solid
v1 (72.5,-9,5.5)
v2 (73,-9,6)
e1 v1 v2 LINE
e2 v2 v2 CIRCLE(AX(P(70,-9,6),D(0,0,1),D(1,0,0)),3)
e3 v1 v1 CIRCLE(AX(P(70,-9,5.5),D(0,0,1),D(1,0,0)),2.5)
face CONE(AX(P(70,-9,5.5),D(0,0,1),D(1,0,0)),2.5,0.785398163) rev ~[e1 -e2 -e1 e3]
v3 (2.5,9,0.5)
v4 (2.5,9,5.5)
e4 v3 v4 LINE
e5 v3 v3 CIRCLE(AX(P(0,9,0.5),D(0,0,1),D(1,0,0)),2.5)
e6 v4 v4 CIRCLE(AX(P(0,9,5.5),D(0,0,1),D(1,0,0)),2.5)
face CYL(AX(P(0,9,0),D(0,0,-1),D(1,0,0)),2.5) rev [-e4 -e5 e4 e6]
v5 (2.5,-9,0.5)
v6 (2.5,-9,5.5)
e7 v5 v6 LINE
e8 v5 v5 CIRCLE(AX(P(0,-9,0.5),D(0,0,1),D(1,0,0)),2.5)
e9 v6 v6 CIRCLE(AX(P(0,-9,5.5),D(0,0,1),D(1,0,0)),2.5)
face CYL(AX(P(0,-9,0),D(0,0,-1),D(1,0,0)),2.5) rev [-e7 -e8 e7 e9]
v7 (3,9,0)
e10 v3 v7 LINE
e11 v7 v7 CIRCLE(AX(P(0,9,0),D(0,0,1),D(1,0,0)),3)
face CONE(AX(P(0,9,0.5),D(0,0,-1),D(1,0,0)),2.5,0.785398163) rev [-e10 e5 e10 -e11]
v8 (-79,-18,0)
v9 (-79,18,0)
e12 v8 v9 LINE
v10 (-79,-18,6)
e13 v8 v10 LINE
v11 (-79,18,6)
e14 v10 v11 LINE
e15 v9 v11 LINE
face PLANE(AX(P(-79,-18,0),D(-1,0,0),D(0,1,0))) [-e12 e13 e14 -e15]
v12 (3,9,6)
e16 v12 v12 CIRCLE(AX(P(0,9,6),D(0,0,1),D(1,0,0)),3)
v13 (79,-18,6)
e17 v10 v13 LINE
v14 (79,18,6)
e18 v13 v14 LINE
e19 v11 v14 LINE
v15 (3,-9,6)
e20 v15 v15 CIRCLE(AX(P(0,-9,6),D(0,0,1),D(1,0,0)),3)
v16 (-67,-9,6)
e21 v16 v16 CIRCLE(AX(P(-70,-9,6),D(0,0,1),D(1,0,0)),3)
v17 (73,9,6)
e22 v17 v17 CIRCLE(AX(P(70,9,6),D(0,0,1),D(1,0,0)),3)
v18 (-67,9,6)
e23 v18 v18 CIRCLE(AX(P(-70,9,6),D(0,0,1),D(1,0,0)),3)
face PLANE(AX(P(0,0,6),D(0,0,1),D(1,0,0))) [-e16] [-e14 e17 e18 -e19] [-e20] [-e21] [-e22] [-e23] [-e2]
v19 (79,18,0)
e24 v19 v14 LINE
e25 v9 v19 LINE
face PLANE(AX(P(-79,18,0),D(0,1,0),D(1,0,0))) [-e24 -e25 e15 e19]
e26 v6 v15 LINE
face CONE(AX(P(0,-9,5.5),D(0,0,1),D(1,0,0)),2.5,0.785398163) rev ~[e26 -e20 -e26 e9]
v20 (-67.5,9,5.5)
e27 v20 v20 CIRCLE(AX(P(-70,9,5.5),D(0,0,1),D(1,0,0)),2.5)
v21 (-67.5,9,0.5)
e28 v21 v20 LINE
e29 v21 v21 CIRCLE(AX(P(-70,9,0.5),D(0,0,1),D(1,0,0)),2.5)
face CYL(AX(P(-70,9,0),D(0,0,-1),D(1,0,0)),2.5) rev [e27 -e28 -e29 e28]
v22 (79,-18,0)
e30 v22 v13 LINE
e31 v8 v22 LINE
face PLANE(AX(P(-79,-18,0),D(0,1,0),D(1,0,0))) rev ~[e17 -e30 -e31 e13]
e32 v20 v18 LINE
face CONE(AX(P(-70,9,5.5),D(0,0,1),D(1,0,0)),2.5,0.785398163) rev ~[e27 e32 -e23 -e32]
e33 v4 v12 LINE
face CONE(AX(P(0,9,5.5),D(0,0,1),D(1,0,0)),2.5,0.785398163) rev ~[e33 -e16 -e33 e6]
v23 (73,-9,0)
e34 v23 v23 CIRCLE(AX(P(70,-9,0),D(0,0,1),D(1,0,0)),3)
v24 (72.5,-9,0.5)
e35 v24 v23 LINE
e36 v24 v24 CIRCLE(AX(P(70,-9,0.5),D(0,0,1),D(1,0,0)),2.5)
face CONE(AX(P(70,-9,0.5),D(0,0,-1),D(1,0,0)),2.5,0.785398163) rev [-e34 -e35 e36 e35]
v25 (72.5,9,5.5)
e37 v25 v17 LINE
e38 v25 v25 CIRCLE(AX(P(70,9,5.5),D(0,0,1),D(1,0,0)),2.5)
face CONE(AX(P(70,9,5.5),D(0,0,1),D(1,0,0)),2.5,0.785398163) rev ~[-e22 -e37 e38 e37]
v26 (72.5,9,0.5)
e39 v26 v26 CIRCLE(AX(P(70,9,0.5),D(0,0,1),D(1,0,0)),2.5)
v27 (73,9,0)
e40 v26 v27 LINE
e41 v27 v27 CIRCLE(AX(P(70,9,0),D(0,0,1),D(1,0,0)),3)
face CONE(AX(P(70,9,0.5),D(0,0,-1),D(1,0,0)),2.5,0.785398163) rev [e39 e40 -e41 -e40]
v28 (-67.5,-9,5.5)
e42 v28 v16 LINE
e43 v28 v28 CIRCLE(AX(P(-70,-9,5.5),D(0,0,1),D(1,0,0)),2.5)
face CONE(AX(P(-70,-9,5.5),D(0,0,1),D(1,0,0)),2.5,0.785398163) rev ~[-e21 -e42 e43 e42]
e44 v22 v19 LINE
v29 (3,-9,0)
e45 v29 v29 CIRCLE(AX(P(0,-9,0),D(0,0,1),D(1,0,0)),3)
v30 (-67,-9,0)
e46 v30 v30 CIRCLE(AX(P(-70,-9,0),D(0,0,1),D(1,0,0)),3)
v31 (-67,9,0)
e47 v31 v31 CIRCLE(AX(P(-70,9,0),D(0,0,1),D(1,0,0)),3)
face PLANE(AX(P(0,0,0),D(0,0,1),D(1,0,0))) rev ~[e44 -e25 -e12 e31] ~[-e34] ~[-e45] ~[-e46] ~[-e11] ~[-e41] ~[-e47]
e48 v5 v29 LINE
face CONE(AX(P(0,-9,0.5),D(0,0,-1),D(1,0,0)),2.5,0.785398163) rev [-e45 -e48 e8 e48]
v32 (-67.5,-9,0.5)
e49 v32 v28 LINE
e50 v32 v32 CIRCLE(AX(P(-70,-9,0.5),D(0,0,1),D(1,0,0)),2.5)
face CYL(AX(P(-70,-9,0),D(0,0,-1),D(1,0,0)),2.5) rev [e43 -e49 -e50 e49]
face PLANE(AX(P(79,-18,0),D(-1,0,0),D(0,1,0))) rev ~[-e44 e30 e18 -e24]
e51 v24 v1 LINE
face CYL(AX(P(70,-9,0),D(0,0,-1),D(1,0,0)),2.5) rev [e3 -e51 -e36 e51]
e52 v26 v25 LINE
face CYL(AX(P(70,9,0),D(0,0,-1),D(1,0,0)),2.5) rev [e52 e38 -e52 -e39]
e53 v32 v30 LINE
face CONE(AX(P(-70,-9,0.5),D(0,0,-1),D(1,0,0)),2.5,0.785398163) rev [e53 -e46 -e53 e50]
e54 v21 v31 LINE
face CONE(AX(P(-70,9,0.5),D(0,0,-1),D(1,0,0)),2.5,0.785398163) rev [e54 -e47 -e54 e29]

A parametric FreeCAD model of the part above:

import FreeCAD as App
import Part
import Sketcher


def edges_at(feature, points):
    """Names of the edges that pass closest to the given points."""
    edges = feature.Shape.Edges
    near = lambda p: min(range(len(edges)), key=lambda i: edges[i].distToShape(Part.Vertex(*p))[0])
    return sorted({f"Edge{near(p) + 1}" for p in points})


def add_polygon(sketch, points):
    """Adds a closed chain of lines whose ends are joined by coincident constraints."""
    first, n = sketch.GeometryCount, len(points)
    for a, b in zip(points, points[1:] + points[:1]):
        sketch.addGeometry(Part.LineSegment(App.Vector(*a, 0), App.Vector(*b, 0)), False)
    for i in range(n):
        sketch.addConstraint(Sketcher.Constraint("Coincident", first + i, 2, first + (i + 1) % n, 1))

doc = App.newDocument("Part")
body = doc.addObject("PartDesign::Body", "Body")

# Sketch on XY plane
sketch1 = body.newObject("Sketcher::SketchObject", "Sketch")
sketch1.AttachmentSupport = (doc.getObject("XY_Plane"), [""])
sketch1.MapMode = "FlatFace"
add_polygon(sketch1, [(-79, 18), (-79, -18), (79, -18), (79, 18)])  # lines 0-3
sketch1.addGeometry(Part.Circle(App.Vector(-70, -9, 0), App.Vector(0, 0, 1), 2.5), False)  # 4
sketch1.addGeometry(Part.Circle(App.Vector(0, -9, 0), App.Vector(0, 0, 1), 2.5), False)  # 5
sketch1.addGeometry(Part.Circle(App.Vector(70, -9, 0), App.Vector(0, 0, 1), 2.5), False)  # 6
sketch1.addGeometry(Part.Circle(App.Vector(-70, 9, 0), App.Vector(0, 0, 1), 2.5), False)  # 7
sketch1.addGeometry(Part.Circle(App.Vector(0, 9, 0), App.Vector(0, 0, 1), 2.5), False)  # 8
sketch1.addGeometry(Part.Circle(App.Vector(70, 9, 0), App.Vector(0, 0, 1), 2.5), False)  # 9
sketch1.addConstraint([
    Sketcher.Constraint("Vertical", 0),
    Sketcher.Constraint("Horizontal", 1),
    Sketcher.Constraint("Vertical", 2),
    Sketcher.Constraint("Horizontal", 3),
    Sketcher.Constraint("Equal", 4, 5),
    Sketcher.Constraint("Equal", 5, 6),
    Sketcher.Constraint("Equal", 6, 7),
    Sketcher.Constraint("Equal", 7, 8),
    Sketcher.Constraint("Equal", 8, 9),
    Sketcher.Constraint("Symmetric", 6, 3, 7, 3, -1, 1),
    Sketcher.Constraint("Symmetric", 5, 3, 8, 3, -1, 1),
    Sketcher.Constraint("Symmetric", 4, 3, 9, 3, -1, 1),
    Sketcher.Constraint("Symmetric", 0, 2, 2, 2, -1, 1),
    Sketcher.Constraint("Symmetric", 4, 3, 6, 3, -2),
    Sketcher.Constraint("PointOnObject", 5, 3, -2),
    Sketcher.Constraint("Horizontal", 4, 3, 5, 3),
    Sketcher.Constraint("Diameter", 4, 5.0),
    Sketcher.Constraint("DistanceX", 1, 1, 1, 2, 158.0),
    Sketcher.Constraint("DistanceY", 0, 2, 0, 1, 36.0),
    Sketcher.Constraint("DistanceX", 4, 3, -1, 1, 70.0),
    Sketcher.Constraint("DistanceY", 4, 3, -1, 1, 9.0),
])
pad1 = body.newObject("PartDesign::Pad", "Pad")
pad1.Profile = sketch1
pad1.Length = 6
doc.recompute()

chamfer = body.newObject("PartDesign::Chamfer", "Chamfer")
chamfer.Base = (pad1, edges_at(pad1, [
    (-67.5, -9, 3),
    (-72.5, -9, 0),
    (-72.5, -9, 6),
    (-67.5, 9, 3),
    (-72.5, 9, 0),
    (-72.5, 9, 6),
    (2.5, -9, 3),
    (-2.5, -9, 0),
    (-2.5, -9, 6),
    (2.5, 9, 3),
    (-2.5, 9, 0),
    (-2.5, 9, 6),
    (72.5, -9, 3),
    (67.5, -9, 0),
    (67.5, -9, 6),
    (72.5, 9, 3),
    (67.5, 9, 0),
    (67.5, 9, 6),
]))
chamfer.Size = 0.5

doc.recompute()
